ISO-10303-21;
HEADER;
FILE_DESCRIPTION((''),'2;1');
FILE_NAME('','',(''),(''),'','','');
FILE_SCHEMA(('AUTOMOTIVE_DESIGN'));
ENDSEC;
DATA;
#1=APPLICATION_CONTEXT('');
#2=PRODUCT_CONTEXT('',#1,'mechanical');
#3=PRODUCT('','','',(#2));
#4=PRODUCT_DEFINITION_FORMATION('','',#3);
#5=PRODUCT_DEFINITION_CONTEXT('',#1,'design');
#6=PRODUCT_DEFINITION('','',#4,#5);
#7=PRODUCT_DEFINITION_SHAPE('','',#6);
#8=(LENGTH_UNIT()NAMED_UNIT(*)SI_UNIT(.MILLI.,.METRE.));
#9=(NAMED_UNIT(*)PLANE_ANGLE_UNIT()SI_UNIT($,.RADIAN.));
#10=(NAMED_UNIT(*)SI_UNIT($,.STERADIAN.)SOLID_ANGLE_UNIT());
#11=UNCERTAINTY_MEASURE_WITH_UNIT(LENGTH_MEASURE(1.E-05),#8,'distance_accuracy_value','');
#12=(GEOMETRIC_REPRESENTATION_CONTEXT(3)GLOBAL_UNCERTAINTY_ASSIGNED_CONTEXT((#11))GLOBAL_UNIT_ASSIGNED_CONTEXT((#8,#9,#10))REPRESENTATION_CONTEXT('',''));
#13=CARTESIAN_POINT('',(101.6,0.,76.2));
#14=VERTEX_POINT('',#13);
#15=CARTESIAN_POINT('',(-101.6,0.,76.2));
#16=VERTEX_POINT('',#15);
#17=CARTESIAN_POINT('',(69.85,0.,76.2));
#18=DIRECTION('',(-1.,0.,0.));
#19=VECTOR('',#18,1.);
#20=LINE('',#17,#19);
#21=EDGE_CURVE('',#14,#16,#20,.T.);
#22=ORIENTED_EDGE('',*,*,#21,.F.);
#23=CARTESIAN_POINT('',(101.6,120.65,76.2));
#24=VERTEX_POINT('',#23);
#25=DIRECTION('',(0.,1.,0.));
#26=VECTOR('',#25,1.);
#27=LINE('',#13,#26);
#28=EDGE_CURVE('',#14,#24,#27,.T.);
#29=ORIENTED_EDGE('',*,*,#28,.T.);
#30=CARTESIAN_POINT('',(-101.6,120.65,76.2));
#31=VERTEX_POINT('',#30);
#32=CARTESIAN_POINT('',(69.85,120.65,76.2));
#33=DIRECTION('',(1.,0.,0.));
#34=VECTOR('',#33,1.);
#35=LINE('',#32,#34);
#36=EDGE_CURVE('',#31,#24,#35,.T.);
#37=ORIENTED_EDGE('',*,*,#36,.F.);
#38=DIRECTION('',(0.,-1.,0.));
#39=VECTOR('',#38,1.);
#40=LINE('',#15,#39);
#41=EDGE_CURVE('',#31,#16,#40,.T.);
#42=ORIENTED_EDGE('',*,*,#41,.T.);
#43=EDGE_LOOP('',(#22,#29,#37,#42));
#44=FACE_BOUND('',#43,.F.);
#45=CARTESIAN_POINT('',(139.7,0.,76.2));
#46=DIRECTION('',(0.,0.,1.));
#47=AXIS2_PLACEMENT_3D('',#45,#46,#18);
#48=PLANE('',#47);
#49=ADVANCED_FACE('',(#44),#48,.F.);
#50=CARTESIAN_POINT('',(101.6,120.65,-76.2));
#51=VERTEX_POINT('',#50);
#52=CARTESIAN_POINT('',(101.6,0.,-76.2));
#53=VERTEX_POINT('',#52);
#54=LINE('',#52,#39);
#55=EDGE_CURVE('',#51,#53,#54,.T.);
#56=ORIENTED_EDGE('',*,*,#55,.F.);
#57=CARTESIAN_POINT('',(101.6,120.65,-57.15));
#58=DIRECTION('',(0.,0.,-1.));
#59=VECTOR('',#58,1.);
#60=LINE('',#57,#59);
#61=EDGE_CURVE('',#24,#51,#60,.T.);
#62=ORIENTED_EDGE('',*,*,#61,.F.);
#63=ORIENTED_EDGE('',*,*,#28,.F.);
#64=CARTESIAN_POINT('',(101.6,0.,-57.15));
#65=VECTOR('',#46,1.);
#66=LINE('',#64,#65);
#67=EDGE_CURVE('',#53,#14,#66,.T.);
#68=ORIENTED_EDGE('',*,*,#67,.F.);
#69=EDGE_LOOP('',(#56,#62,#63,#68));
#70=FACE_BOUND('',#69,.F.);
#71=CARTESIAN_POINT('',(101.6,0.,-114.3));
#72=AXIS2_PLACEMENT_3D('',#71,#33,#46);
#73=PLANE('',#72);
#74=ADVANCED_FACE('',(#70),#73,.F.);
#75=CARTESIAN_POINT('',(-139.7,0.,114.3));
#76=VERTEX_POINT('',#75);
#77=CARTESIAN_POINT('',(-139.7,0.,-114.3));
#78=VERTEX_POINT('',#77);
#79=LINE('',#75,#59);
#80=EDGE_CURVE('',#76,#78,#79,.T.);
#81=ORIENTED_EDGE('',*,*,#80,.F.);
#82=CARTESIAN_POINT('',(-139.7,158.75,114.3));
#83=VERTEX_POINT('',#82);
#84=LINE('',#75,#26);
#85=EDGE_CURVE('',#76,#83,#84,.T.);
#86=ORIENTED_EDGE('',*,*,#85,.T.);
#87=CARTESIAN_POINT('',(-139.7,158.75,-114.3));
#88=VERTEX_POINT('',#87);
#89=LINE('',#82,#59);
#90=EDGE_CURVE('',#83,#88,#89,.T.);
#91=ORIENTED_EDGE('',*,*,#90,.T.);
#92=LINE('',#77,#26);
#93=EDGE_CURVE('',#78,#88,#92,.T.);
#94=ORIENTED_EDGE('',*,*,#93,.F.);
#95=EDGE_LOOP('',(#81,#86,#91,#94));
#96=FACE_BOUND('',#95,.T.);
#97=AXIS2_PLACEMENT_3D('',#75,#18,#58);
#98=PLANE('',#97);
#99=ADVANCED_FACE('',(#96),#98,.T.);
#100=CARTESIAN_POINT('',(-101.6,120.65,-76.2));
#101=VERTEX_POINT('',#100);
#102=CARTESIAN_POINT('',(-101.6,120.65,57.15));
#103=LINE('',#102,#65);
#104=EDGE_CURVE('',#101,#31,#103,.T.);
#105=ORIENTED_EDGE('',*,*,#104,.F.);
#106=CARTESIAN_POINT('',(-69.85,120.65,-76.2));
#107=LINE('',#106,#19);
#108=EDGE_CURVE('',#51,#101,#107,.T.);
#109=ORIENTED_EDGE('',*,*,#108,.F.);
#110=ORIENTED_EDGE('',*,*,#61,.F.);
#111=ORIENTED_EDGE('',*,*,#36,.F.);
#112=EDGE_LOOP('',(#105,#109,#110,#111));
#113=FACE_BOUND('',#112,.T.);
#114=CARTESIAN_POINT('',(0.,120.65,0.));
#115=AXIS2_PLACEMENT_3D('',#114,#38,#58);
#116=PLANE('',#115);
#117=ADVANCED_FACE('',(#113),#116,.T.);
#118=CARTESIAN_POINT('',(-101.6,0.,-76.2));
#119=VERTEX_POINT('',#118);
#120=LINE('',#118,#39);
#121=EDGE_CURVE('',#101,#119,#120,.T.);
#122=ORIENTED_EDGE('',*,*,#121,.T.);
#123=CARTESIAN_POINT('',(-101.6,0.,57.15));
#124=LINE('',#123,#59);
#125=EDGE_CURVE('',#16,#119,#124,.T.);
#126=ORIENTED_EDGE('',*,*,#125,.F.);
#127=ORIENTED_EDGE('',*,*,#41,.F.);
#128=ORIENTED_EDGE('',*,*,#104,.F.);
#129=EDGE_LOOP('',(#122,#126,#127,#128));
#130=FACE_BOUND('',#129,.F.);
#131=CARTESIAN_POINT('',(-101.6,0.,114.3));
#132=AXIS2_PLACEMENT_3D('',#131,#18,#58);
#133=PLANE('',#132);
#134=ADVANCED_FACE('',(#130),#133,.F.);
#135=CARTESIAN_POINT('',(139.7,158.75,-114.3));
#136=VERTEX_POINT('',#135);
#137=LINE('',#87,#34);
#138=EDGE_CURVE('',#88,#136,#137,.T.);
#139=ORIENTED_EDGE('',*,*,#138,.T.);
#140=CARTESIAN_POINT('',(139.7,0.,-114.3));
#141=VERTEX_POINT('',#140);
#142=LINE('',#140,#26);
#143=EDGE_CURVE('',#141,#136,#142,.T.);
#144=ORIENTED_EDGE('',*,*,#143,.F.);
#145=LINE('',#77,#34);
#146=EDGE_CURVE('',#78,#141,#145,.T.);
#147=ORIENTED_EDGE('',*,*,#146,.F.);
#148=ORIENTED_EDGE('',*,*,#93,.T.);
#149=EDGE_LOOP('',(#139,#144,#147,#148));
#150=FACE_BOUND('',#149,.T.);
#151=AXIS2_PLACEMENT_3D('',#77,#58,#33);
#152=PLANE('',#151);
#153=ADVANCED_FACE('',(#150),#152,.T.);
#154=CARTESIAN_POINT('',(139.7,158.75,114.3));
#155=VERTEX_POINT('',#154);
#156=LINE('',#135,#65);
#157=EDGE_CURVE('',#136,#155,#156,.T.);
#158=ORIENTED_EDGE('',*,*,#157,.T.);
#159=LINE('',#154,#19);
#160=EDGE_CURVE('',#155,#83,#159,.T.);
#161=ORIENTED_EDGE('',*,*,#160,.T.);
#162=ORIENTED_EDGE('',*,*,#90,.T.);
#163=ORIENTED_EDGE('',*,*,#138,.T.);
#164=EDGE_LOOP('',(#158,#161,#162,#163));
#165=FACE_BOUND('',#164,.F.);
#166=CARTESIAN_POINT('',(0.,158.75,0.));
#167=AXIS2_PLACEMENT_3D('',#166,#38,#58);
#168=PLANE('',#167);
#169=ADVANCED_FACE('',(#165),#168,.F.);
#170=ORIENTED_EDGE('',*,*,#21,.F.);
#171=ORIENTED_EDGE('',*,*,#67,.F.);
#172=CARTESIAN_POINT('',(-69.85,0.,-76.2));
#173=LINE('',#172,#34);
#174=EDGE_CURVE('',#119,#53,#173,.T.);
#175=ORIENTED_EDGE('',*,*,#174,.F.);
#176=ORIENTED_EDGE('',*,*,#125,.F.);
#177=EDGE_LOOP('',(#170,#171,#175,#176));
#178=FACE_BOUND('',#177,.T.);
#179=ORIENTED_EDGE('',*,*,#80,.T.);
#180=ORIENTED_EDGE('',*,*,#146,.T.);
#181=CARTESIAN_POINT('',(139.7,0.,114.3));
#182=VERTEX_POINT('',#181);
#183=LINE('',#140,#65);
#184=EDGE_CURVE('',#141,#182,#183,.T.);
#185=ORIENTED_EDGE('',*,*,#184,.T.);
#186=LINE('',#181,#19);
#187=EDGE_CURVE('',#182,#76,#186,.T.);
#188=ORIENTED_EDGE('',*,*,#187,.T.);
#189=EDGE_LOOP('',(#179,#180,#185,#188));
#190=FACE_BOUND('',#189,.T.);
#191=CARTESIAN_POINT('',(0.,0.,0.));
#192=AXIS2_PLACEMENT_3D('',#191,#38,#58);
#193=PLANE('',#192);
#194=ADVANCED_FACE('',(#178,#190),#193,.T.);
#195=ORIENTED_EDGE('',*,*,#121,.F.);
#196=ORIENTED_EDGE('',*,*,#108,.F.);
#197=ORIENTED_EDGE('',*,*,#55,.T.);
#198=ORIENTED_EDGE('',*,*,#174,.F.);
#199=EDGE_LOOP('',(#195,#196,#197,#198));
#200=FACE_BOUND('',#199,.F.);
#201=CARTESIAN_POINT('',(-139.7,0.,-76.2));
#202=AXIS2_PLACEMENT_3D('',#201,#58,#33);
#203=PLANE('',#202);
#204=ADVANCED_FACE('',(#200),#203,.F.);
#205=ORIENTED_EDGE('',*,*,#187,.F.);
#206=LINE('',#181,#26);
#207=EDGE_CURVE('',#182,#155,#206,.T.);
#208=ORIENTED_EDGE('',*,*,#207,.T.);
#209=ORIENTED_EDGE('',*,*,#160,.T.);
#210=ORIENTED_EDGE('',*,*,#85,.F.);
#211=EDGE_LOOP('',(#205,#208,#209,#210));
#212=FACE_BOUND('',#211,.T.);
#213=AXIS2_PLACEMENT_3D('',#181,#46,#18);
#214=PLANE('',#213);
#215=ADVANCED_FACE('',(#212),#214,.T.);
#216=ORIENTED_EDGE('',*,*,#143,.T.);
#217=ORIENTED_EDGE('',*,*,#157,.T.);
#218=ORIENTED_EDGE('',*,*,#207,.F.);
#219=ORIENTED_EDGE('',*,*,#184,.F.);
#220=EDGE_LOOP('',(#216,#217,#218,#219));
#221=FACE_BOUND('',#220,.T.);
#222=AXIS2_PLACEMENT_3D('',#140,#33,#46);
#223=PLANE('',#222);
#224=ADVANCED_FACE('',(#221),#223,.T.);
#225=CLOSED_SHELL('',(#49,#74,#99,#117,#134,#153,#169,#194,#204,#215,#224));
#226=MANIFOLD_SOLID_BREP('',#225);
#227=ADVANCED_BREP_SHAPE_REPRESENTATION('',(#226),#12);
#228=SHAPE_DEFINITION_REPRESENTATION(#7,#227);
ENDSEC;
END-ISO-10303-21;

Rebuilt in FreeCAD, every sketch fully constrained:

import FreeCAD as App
import Part
import Sketcher

V = App.Vector
Q = App.Units.Quantity


def faces_at(feature, points):
    """Names of the faces that lie closest to the given points."""
    faces = feature.Shape.Faces
    near = lambda p: min(range(len(faces)), key=lambda i: faces[i].distToShape(Part.Vertex(*p))[0])
    return sorted({f"Face{near(p) + 1}" for p in points})

doc = App.newDocument("Part")
body = doc.addObject("PartDesign::Body", "Body")

sketch1 = doc.addObject("Sketcher::SketchObject", "Sketch")
body.addObject(sketch1)
sketch1.AttachmentSupport = (doc.XZ_Plane, [""])
sketch1.MapMode = "FlatFace"
sketch1.addGeometry(Part.LineSegment(V(140, -114, 0), V(140, 114, 0)), False)
sketch1.addGeometry(Part.LineSegment(V(140, 114, 0), V(-140, 114, 0)), False)
sketch1.addGeometry(Part.LineSegment(V(-140, 114, 0), V(-140, -114, 0)), False)
sketch1.addGeometry(Part.LineSegment(V(-140, -114, 0), V(140, -114, 0)), False)
sketch1.addConstraint(Sketcher.Constraint("Coincident", 0, 2, 1, 1))
sketch1.addConstraint(Sketcher.Constraint("Coincident", 1, 2, 2, 1))
sketch1.addConstraint(Sketcher.Constraint("Coincident", 2, 2, 3, 1))
sketch1.addConstraint(Sketcher.Constraint("Coincident", 3, 2, 0, 1))
sketch1.addConstraint(Sketcher.Constraint("Vertical", 0))
sketch1.addConstraint(Sketcher.Constraint("Horizontal", 1))
sketch1.addConstraint(Sketcher.Constraint("Vertical", 2))
sketch1.addConstraint(Sketcher.Constraint("Horizontal", 3))
sketch1.addConstraint(Sketcher.Constraint("Symmetric", 0, 2, 2, 2, -1, 1))
sketch1.addConstraint(Sketcher.Constraint("DistanceX", 1, 2, 1, 1, Q("11 in")))
sketch1.addConstraint(Sketcher.Constraint("DistanceY", 0, 1, 0, 2, Q("9 in")))
pad1 = doc.addObject("PartDesign::Pad", "Pad")
body.addObject(pad1)
pad1.Profile = sketch1
pad1.Length = Q("6.25 in")
pad1.Reversed = True
doc.recompute()

thickness = doc.addObject("PartDesign::Thickness", "Thickness")
body.addObject(thickness)
thickness.Base = (pad1, faces_at(pad1, [(-90.339, 0, 78.486)]))
thickness.Value = Q("1.5 in")
thickness.Reversed = True
thickness.Join = "Intersection"

doc.recompute()
